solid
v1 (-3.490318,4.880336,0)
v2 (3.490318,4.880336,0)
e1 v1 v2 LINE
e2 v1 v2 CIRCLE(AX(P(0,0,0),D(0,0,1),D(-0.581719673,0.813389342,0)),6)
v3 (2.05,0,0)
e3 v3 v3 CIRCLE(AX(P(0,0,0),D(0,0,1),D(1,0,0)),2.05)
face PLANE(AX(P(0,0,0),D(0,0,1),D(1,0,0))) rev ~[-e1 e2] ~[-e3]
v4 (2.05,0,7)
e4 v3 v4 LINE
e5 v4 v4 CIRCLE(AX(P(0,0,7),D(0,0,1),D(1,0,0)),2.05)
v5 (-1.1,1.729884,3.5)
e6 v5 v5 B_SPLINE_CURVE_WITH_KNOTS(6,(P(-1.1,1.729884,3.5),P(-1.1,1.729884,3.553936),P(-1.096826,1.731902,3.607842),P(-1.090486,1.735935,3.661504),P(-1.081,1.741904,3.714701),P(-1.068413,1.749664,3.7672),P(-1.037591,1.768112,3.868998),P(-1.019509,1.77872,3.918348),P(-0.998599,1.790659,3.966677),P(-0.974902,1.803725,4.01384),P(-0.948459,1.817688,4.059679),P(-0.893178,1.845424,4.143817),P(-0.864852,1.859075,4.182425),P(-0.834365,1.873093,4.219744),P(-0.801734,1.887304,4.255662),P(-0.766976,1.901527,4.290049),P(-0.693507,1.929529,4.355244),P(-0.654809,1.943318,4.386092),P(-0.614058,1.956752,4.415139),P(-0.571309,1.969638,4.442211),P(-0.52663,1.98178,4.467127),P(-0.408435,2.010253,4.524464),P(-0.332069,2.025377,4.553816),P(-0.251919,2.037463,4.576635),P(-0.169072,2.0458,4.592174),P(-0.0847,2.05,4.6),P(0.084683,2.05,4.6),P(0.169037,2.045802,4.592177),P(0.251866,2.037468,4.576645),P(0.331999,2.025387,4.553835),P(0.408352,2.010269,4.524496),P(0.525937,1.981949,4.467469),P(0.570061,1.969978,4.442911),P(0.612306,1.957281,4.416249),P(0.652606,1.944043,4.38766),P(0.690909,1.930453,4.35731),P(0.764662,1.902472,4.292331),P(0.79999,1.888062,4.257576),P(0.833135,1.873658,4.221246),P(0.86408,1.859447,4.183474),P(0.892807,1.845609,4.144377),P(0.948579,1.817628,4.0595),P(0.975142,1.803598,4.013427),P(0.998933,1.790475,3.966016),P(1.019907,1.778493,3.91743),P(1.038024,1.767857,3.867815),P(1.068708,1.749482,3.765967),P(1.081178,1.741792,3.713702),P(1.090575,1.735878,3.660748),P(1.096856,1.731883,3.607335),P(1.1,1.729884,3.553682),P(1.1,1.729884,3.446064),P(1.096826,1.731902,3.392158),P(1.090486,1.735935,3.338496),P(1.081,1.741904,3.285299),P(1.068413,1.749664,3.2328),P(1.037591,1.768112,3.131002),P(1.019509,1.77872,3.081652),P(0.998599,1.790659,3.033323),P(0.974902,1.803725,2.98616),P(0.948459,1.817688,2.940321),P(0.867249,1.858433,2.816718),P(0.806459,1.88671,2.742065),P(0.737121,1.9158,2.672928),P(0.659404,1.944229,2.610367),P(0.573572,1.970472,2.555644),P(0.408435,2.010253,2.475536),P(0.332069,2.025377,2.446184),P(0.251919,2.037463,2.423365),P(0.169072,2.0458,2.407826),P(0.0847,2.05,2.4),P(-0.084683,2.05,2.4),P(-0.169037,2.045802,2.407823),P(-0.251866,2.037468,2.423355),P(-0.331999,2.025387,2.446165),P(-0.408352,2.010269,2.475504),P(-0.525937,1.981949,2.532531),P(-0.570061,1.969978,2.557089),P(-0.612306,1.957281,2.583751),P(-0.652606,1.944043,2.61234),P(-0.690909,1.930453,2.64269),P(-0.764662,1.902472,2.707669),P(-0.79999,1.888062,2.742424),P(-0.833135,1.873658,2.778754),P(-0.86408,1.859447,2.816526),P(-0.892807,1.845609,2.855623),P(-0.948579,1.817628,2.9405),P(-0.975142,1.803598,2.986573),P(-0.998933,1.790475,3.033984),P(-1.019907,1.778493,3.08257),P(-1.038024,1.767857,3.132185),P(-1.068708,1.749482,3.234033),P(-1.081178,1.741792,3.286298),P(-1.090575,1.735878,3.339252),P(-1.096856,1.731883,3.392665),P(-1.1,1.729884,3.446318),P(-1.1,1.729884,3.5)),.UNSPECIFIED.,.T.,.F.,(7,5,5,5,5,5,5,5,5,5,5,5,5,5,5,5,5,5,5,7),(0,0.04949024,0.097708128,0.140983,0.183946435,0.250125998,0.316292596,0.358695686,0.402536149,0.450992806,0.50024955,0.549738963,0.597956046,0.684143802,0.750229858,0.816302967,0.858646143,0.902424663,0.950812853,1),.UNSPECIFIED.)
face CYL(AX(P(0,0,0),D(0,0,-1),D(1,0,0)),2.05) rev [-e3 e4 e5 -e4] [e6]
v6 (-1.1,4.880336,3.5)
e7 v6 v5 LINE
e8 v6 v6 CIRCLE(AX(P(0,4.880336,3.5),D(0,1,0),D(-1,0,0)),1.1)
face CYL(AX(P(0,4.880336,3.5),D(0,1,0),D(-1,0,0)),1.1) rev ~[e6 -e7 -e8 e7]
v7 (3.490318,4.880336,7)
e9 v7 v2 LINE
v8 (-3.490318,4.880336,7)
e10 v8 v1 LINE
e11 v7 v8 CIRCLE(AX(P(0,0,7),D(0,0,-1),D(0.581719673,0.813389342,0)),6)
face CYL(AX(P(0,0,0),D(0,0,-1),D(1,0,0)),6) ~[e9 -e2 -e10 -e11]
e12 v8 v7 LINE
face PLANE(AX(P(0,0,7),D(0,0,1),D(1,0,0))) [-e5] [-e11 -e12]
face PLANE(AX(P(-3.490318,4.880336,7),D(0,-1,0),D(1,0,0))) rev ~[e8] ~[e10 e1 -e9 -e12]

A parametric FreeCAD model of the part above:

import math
import FreeCAD as App
import Part
import Sketcher
from FreeCAD import Vector
Q = App.Units.Quantity

doc = App.newDocument("Part")
body = doc.addObject("PartDesign::Body", "Body")

# Sketch on XY plane
sketch1 = body.newObject("Sketcher::SketchObject", "Sketch")
sketch1.AttachmentSupport = (doc.getObject("XY_Plane"), [""])
sketch1.MapMode = "FlatFace"
sketch1.addGeometry([
    Part.Circle(Vector(0, 0, 0), Vector(0, 0, 1), 6),
    Part.Circle(Vector(0, 0, 0), Vector(0, 0, 1), 2.05),
], False)
sketch1.addConstraint([
    Sketcher.Constraint("Coincident", 0, 3, -1, 1),
    Sketcher.Constraint("Coincident", 1, 3, -1, 1),
    Sketcher.Constraint("Diameter", 0, Q("12 mm")),
    Sketcher.Constraint("Diameter", 1, Q("4.1 mm")),
])
pad1 = body.newObject("PartDesign::Pad", "Pad")
pad1.Profile = sketch1
pad1.Length = 7

# Sketch on XY plane
sketch2 = body.newObject("Sketcher::SketchObject", "Sketch001")
sketch2.AttachmentSupport = (doc.getObject("XY_Plane"), [""])
sketch2.MapMode = "FlatFace"
sketch2.AttachmentOffset = App.Placement(Vector(0, 0, 7), App.Rotation())
sketch2.addGeometry([
    Part.ArcOfCircle(Part.Circle(Vector(0, 0, 0), Vector(0, 0, 1), 6), math.radians(54.428412), math.radians(125.571588)),
    Part.LineSegment(Vector(-3.490318, 4.880336, 0), Vector(3.490318, 4.880336, 0)),
], False)
sketch2.addConstraint([
    Sketcher.Constraint("Coincident", 0, 1, 1, 2),
    Sketcher.Constraint("Coincident", 1, 1, 0, 2),
    Sketcher.Constraint("Horizontal", 1),
    Sketcher.Constraint("Coincident", 0, 3, -1, 1),
    Sketcher.Constraint("Radius", 0, Q("6 mm")),
    Sketcher.Constraint("DistanceX", 1, 1, 1, 2, Q("6.980636 mm")),
])
pocket1 = body.newObject("PartDesign::Pocket", "Pocket")
pocket1.Profile = sketch2
pocket1.Type = "ThroughAll"

# Sketch on XZ plane
sketch3 = body.newObject("Sketcher::SketchObject", "Sketch002")
sketch3.AttachmentSupport = (doc.getObject("XZ_Plane"), [""])
sketch3.MapMode = "FlatFace"
sketch3.AttachmentOffset = App.Placement(Vector(0, 0, -4.880336), App.Rotation())
sketch3.addGeometry(Part.Circle(Vector(0, 3.5, 0), Vector(0, 0, 1), 1.1), False)
sketch3.addConstraint([
    Sketcher.Constraint("PointOnObject", 0, 3, -2),
    Sketcher.Constraint("Diameter", 0, Q("2.2 mm")),
    Sketcher.Constraint("DistanceY", -1, 1, 0, 3, Q("3.5 mm")),
])
pocket2 = body.newObject("PartDesign::Pocket", "Pocket001")
pocket2.Profile = sketch3
pocket2.Length = 4
pocket2.Reversed = True

doc.recompute()
